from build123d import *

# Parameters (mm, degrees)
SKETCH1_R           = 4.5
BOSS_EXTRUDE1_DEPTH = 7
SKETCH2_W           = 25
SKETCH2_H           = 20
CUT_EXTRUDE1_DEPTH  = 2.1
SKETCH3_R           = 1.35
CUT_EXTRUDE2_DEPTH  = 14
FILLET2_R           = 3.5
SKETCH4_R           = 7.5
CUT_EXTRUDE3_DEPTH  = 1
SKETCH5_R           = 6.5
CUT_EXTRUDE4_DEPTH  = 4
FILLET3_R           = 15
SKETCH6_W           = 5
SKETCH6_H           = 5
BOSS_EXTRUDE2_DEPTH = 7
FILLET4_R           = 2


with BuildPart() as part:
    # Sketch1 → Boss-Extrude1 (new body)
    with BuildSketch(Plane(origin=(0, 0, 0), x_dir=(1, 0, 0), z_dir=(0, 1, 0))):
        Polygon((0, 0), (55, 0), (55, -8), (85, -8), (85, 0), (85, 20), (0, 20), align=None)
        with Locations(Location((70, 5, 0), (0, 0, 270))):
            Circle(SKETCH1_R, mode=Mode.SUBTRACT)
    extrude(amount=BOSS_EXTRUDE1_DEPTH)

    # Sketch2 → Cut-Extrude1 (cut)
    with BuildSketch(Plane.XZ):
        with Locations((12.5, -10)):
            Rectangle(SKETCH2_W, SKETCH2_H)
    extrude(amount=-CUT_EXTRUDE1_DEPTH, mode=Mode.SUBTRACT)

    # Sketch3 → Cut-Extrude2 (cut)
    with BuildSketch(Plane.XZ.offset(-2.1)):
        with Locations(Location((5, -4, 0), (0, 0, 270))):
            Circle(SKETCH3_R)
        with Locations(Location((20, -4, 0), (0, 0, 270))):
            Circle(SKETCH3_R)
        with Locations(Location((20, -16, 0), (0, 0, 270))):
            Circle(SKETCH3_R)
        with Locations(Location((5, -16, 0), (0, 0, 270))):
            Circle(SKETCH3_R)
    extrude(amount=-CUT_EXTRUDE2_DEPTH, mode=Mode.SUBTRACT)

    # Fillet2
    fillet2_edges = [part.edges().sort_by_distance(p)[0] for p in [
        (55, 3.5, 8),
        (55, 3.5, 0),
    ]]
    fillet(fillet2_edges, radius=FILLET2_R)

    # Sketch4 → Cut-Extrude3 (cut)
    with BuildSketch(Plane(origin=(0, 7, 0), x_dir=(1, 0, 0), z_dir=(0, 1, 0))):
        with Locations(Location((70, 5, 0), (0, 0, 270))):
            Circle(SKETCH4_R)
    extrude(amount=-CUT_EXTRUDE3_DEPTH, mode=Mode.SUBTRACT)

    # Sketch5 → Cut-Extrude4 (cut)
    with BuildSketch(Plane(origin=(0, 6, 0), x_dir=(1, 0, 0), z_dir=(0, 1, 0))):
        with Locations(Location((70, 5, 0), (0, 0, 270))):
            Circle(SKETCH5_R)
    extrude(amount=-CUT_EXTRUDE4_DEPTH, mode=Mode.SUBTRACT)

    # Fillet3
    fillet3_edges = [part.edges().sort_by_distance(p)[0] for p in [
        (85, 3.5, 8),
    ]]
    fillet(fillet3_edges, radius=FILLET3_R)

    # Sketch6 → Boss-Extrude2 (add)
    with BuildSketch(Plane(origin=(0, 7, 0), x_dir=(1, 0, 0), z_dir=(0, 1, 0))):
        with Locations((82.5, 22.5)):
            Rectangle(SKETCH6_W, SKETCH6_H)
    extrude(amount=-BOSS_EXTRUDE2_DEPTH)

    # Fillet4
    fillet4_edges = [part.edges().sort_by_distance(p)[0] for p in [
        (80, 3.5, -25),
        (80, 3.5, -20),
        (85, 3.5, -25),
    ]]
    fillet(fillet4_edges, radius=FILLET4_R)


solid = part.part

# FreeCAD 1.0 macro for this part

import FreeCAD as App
import Part
import Sketcher


def edges_at(feature, points):
    """Names of the edges that pass closest to the given points."""
    edges = feature.Shape.Edges
    near = lambda p: min(range(len(edges)), key=lambda i: edges[i].distToShape(Part.Vertex(*p))[0])
    return sorted({f"Edge{near(p) + 1}" for p in points})

doc = App.newDocument("Part")
body = doc.addObject("PartDesign::Body", "Body")

# Sketch on XZ plane
sketch1 = body.newObject("Sketcher::SketchObject", "Sketch")
sketch1.AttachmentSupport = (doc.getObject("XZ_Plane"), [""])
sketch1.MapMode = "FlatFace"
sketch1.addGeometry([
    Part.LineSegment(App.Vector(0, 0, 0), App.Vector(55, 0, 0)),  # 0
    Part.LineSegment(App.Vector(55, 0, 0), App.Vector(55, 8, 0)),  # 1
    Part.LineSegment(App.Vector(55, 8, 0), App.Vector(85, 8, 0)),  # 2
    Part.LineSegment(App.Vector(85, 8, 0), App.Vector(85, -20, 0)),  # 3
    Part.LineSegment(App.Vector(85, -20, 0), App.Vector(0, -20, 0)),  # 4
    Part.LineSegment(App.Vector(0, -20, 0), App.Vector(0, 0, 0)),  # 5
    Part.Circle(App.Vector(70, -5, 0), App.Vector(0, 0, 1), 4.5),  # 6
], False)
sketch1.addConstraint([
    Sketcher.Constraint("Coincident", 0, 2, 1, 1),
    Sketcher.Constraint("Coincident", 1, 2, 2, 1),
    Sketcher.Constraint("Coincident", 2, 2, 3, 1),
    Sketcher.Constraint("Coincident", 3, 2, 4, 1),
    Sketcher.Constraint("Coincident", 4, 2, 5, 1),
    Sketcher.Constraint("Coincident", 5, 2, 0, 1),
    Sketcher.Constraint("Horizontal", 0),
    Sketcher.Constraint("Vertical", 1),
    Sketcher.Constraint("Horizontal", 2),
    Sketcher.Constraint("Vertical", 3),
    Sketcher.Constraint("Horizontal", 4),
    Sketcher.Constraint("Vertical", 5),
    Sketcher.Constraint("Coincident", 5, 2, -1, 1),
    Sketcher.Constraint("Diameter", 6, 9.0),
    Sketcher.Constraint("DistanceX", 0, 1, 0, 2, 55.0),
    Sketcher.Constraint("DistanceX", 2, 1, 2, 2, 30.0),
    Sketcher.Constraint("DistanceY", 1, 1, 1, 2, 8.0),
    Sketcher.Constraint("DistanceY", 3, 2, 3, 1, 28.0),
    Sketcher.Constraint("DistanceX", -1, 1, 6, 3, 70.0),
    Sketcher.Constraint("DistanceY", 6, 3, -1, 1, 5.0),
])
pad1 = body.newObject("PartDesign::Pad", "Pad")
pad1.Profile = sketch1
pad1.Length = 7
pad1.Reversed = True

# Sketch on XZ plane
sketch2 = body.newObject("Sketcher::SketchObject", "Sketch001")
sketch2.AttachmentSupport = (doc.getObject("XZ_Plane"), [""])
sketch2.MapMode = "FlatFace"
sketch2.addGeometry([
    Part.LineSegment(App.Vector(0, 0, 0), App.Vector(0, -20, 0)),
    Part.LineSegment(App.Vector(0, -20, 0), App.Vector(25, -20, 0)),
    Part.LineSegment(App.Vector(25, -20, 0), App.Vector(25, 0, 0)),
    Part.LineSegment(App.Vector(25, 0, 0), App.Vector(0, 0, 0)),
], False)
sketch2.addConstraint([
    Sketcher.Constraint("Coincident", 0, 2, 1, 1),
    Sketcher.Constraint("Coincident", 1, 2, 2, 1),
    Sketcher.Constraint("Coincident", 2, 2, 3, 1),
    Sketcher.Constraint("Coincident", 3, 2, 0, 1),
    Sketcher.Constraint("Vertical", 0),
    Sketcher.Constraint("Horizontal", 1),
    Sketcher.Constraint("Vertical", 2),
    Sketcher.Constraint("Horizontal", 3),
    Sketcher.Constraint("Coincident", 3, 2, -1, 1),
    Sketcher.Constraint("DistanceX", 1, 1, 1, 2, 25.0),
    Sketcher.Constraint("DistanceY", 0, 2, 0, 1, 20.0),
])
pocket1 = body.newObject("PartDesign::Pocket", "Pocket")
pocket1.Profile = sketch2
pocket1.Length = 2.1

# Sketch on XZ plane
sketch3 = body.newObject("Sketcher::SketchObject", "Sketch002")
sketch3.AttachmentSupport = (doc.getObject("XZ_Plane"), [""])
sketch3.MapMode = "FlatFace"
sketch3.AttachmentOffset = App.Placement(App.Vector(0, 0, -2.1), App.Rotation())
sketch3.addGeometry([
    Part.Circle(App.Vector(5, -4, 0), App.Vector(0, 0, 1), 1.4),
    Part.Circle(App.Vector(20, -4, 0), App.Vector(0, 0, 1), 1.4),
    Part.Circle(App.Vector(20, -16, 0), App.Vector(0, 0, 1), 1.4),
    Part.Circle(App.Vector(5, -16, 0), App.Vector(0, 0, 1), 1.4),
], False)
sketch3.addConstraint([
    Sketcher.Constraint("Equal", 0, 1),
    Sketcher.Constraint("Equal", 1, 2),
    Sketcher.Constraint("Equal", 2, 3),
    Sketcher.Constraint("Horizontal", 0, 3, 1, 3),
    Sketcher.Constraint("Horizontal", 2, 3, 3, 3),
    Sketcher.Constraint("Vertical", 1, 3, 2, 3),
    Sketcher.Constraint("Vertical", 0, 3, 3, 3),
    Sketcher.Constraint("Diameter", 0, 2.7),
    Sketcher.Constraint("DistanceX", -1, 1, 0, 3, 5.0),
    Sketcher.Constraint("DistanceY", 0, 3, -1, 1, 4.0),
    Sketcher.Constraint("DistanceX", -1, 1, 1, 3, 20.0),
    Sketcher.Constraint("DistanceY", 2, 3, -1, 1, 16.0),
])
pocket2 = body.newObject("PartDesign::Pocket", "Pocket001")
pocket2.Profile = sketch3
pocket2.Length = 14
doc.recompute()

fillet = body.newObject("PartDesign::Fillet", "Fillet")
fillet.Base = (pocket2, edges_at(pocket2, [(55, 3.5, 8), (55, 3.5, 0)]))
fillet.Radius = 3.5

# Sketch on XZ plane
sketch4 = body.newObject("Sketcher::SketchObject", "Sketch003")
sketch4.AttachmentSupport = (doc.getObject("XZ_Plane"), [""])
sketch4.MapMode = "FlatFace"
sketch4.AttachmentOffset = App.Placement(App.Vector(0, 0, -7), App.Rotation())
sketch4.addGeometry(Part.Circle(App.Vector(70, -5, 0), App.Vector(0, 0, 1), 8), False)
sketch4.addConstraint([
    Sketcher.Constraint("Diameter", 0, 15.0),
    Sketcher.Constraint("DistanceX", -1, 1, 0, 3, 70.0),
    Sketcher.Constraint("DistanceY", 0, 3, -1, 1, 5.0),
])
pocket3 = body.newObject("PartDesign::Pocket", "Pocket002")
pocket3.Profile = sketch4
pocket3.Length = 1
pocket3.Reversed = True

# Sketch on XZ plane
sketch5 = body.newObject("Sketcher::SketchObject", "Sketch004")
sketch5.AttachmentSupport = (doc.getObject("XZ_Plane"), [""])
sketch5.MapMode = "FlatFace"
sketch5.AttachmentOffset = App.Placement(App.Vector(0, 0, -6), App.Rotation())
sketch5.addGeometry(Part.Circle(App.Vector(70, -5, 0), App.Vector(0, 0, 1), 6), False)
sketch5.addConstraint([
    Sketcher.Constraint("Diameter", 0, 13.0),
    Sketcher.Constraint("DistanceX", -1, 1, 0, 3, 70.0),
    Sketcher.Constraint("DistanceY", 0, 3, -1, 1, 5.0),
])
pocket4 = body.newObject("PartDesign::Pocket", "Pocket003")
pocket4.Profile = sketch5
pocket4.Length = 4
pocket4.Reversed = True
doc.recompute()

fillet2 = body.newObject("PartDesign::Fillet", "Fillet001")
fillet2.Base = (pocket4, edges_at(pocket4, [(85, 3.5, 8)]))
fillet2.Radius = 15

# Sketch on XZ plane
sketch6 = body.newObject("Sketcher::SketchObject", "Sketch005")
sketch6.AttachmentSupport = (doc.getObject("XZ_Plane"), [""])
sketch6.MapMode = "FlatFace"
sketch6.AttachmentOffset = App.Placement(App.Vector(0, 0, -7), App.Rotation())
sketch6.addGeometry([
    Part.LineSegment(App.Vector(80, -25, 0), App.Vector(80, -20, 0)),
    Part.LineSegment(App.Vector(80, -20, 0), App.Vector(85, -20, 0)),
    Part.LineSegment(App.Vector(85, -20, 0), App.Vector(85, -25, 0)),
    Part.LineSegment(App.Vector(85, -25, 0), App.Vector(80, -25, 0)),
], False)
sketch6.addConstraint([
    Sketcher.Constraint("Coincident", 0, 2, 1, 1),
    Sketcher.Constraint("Coincident", 1, 2, 2, 1),
    Sketcher.Constraint("Coincident", 2, 2, 3, 1),
    Sketcher.Constraint("Coincident", 3, 2, 0, 1),
    Sketcher.Constraint("Vertical", 0),
    Sketcher.Constraint("Horizontal", 1),
    Sketcher.Constraint("Vertical", 2),
    Sketcher.Constraint("Horizontal", 3),
    Sketcher.Constraint("Equal", 3, 0),
    Sketcher.Constraint("DistanceX", 1, 1, 1, 2, 5.0),
    Sketcher.Constraint("DistanceX", -1, 1, 0, 2, 80.0),
    Sketcher.Constraint("DistanceY", 0, 2, -1, 1, 20.0),
])
pad2 = body.newObject("PartDesign::Pad", "Pad001")
pad2.Profile = sketch6
pad2.Length = 7
doc.recompute()

fillet3 = body.newObject("PartDesign::Fillet", "Fillet002")
fillet3.Base = (pad2, edges_at(pad2, [(80, 3.5, -25), (80, 3.5, -20), (85, 3.5, -25)]))
fillet3.Radius = 2

doc.recompute()
